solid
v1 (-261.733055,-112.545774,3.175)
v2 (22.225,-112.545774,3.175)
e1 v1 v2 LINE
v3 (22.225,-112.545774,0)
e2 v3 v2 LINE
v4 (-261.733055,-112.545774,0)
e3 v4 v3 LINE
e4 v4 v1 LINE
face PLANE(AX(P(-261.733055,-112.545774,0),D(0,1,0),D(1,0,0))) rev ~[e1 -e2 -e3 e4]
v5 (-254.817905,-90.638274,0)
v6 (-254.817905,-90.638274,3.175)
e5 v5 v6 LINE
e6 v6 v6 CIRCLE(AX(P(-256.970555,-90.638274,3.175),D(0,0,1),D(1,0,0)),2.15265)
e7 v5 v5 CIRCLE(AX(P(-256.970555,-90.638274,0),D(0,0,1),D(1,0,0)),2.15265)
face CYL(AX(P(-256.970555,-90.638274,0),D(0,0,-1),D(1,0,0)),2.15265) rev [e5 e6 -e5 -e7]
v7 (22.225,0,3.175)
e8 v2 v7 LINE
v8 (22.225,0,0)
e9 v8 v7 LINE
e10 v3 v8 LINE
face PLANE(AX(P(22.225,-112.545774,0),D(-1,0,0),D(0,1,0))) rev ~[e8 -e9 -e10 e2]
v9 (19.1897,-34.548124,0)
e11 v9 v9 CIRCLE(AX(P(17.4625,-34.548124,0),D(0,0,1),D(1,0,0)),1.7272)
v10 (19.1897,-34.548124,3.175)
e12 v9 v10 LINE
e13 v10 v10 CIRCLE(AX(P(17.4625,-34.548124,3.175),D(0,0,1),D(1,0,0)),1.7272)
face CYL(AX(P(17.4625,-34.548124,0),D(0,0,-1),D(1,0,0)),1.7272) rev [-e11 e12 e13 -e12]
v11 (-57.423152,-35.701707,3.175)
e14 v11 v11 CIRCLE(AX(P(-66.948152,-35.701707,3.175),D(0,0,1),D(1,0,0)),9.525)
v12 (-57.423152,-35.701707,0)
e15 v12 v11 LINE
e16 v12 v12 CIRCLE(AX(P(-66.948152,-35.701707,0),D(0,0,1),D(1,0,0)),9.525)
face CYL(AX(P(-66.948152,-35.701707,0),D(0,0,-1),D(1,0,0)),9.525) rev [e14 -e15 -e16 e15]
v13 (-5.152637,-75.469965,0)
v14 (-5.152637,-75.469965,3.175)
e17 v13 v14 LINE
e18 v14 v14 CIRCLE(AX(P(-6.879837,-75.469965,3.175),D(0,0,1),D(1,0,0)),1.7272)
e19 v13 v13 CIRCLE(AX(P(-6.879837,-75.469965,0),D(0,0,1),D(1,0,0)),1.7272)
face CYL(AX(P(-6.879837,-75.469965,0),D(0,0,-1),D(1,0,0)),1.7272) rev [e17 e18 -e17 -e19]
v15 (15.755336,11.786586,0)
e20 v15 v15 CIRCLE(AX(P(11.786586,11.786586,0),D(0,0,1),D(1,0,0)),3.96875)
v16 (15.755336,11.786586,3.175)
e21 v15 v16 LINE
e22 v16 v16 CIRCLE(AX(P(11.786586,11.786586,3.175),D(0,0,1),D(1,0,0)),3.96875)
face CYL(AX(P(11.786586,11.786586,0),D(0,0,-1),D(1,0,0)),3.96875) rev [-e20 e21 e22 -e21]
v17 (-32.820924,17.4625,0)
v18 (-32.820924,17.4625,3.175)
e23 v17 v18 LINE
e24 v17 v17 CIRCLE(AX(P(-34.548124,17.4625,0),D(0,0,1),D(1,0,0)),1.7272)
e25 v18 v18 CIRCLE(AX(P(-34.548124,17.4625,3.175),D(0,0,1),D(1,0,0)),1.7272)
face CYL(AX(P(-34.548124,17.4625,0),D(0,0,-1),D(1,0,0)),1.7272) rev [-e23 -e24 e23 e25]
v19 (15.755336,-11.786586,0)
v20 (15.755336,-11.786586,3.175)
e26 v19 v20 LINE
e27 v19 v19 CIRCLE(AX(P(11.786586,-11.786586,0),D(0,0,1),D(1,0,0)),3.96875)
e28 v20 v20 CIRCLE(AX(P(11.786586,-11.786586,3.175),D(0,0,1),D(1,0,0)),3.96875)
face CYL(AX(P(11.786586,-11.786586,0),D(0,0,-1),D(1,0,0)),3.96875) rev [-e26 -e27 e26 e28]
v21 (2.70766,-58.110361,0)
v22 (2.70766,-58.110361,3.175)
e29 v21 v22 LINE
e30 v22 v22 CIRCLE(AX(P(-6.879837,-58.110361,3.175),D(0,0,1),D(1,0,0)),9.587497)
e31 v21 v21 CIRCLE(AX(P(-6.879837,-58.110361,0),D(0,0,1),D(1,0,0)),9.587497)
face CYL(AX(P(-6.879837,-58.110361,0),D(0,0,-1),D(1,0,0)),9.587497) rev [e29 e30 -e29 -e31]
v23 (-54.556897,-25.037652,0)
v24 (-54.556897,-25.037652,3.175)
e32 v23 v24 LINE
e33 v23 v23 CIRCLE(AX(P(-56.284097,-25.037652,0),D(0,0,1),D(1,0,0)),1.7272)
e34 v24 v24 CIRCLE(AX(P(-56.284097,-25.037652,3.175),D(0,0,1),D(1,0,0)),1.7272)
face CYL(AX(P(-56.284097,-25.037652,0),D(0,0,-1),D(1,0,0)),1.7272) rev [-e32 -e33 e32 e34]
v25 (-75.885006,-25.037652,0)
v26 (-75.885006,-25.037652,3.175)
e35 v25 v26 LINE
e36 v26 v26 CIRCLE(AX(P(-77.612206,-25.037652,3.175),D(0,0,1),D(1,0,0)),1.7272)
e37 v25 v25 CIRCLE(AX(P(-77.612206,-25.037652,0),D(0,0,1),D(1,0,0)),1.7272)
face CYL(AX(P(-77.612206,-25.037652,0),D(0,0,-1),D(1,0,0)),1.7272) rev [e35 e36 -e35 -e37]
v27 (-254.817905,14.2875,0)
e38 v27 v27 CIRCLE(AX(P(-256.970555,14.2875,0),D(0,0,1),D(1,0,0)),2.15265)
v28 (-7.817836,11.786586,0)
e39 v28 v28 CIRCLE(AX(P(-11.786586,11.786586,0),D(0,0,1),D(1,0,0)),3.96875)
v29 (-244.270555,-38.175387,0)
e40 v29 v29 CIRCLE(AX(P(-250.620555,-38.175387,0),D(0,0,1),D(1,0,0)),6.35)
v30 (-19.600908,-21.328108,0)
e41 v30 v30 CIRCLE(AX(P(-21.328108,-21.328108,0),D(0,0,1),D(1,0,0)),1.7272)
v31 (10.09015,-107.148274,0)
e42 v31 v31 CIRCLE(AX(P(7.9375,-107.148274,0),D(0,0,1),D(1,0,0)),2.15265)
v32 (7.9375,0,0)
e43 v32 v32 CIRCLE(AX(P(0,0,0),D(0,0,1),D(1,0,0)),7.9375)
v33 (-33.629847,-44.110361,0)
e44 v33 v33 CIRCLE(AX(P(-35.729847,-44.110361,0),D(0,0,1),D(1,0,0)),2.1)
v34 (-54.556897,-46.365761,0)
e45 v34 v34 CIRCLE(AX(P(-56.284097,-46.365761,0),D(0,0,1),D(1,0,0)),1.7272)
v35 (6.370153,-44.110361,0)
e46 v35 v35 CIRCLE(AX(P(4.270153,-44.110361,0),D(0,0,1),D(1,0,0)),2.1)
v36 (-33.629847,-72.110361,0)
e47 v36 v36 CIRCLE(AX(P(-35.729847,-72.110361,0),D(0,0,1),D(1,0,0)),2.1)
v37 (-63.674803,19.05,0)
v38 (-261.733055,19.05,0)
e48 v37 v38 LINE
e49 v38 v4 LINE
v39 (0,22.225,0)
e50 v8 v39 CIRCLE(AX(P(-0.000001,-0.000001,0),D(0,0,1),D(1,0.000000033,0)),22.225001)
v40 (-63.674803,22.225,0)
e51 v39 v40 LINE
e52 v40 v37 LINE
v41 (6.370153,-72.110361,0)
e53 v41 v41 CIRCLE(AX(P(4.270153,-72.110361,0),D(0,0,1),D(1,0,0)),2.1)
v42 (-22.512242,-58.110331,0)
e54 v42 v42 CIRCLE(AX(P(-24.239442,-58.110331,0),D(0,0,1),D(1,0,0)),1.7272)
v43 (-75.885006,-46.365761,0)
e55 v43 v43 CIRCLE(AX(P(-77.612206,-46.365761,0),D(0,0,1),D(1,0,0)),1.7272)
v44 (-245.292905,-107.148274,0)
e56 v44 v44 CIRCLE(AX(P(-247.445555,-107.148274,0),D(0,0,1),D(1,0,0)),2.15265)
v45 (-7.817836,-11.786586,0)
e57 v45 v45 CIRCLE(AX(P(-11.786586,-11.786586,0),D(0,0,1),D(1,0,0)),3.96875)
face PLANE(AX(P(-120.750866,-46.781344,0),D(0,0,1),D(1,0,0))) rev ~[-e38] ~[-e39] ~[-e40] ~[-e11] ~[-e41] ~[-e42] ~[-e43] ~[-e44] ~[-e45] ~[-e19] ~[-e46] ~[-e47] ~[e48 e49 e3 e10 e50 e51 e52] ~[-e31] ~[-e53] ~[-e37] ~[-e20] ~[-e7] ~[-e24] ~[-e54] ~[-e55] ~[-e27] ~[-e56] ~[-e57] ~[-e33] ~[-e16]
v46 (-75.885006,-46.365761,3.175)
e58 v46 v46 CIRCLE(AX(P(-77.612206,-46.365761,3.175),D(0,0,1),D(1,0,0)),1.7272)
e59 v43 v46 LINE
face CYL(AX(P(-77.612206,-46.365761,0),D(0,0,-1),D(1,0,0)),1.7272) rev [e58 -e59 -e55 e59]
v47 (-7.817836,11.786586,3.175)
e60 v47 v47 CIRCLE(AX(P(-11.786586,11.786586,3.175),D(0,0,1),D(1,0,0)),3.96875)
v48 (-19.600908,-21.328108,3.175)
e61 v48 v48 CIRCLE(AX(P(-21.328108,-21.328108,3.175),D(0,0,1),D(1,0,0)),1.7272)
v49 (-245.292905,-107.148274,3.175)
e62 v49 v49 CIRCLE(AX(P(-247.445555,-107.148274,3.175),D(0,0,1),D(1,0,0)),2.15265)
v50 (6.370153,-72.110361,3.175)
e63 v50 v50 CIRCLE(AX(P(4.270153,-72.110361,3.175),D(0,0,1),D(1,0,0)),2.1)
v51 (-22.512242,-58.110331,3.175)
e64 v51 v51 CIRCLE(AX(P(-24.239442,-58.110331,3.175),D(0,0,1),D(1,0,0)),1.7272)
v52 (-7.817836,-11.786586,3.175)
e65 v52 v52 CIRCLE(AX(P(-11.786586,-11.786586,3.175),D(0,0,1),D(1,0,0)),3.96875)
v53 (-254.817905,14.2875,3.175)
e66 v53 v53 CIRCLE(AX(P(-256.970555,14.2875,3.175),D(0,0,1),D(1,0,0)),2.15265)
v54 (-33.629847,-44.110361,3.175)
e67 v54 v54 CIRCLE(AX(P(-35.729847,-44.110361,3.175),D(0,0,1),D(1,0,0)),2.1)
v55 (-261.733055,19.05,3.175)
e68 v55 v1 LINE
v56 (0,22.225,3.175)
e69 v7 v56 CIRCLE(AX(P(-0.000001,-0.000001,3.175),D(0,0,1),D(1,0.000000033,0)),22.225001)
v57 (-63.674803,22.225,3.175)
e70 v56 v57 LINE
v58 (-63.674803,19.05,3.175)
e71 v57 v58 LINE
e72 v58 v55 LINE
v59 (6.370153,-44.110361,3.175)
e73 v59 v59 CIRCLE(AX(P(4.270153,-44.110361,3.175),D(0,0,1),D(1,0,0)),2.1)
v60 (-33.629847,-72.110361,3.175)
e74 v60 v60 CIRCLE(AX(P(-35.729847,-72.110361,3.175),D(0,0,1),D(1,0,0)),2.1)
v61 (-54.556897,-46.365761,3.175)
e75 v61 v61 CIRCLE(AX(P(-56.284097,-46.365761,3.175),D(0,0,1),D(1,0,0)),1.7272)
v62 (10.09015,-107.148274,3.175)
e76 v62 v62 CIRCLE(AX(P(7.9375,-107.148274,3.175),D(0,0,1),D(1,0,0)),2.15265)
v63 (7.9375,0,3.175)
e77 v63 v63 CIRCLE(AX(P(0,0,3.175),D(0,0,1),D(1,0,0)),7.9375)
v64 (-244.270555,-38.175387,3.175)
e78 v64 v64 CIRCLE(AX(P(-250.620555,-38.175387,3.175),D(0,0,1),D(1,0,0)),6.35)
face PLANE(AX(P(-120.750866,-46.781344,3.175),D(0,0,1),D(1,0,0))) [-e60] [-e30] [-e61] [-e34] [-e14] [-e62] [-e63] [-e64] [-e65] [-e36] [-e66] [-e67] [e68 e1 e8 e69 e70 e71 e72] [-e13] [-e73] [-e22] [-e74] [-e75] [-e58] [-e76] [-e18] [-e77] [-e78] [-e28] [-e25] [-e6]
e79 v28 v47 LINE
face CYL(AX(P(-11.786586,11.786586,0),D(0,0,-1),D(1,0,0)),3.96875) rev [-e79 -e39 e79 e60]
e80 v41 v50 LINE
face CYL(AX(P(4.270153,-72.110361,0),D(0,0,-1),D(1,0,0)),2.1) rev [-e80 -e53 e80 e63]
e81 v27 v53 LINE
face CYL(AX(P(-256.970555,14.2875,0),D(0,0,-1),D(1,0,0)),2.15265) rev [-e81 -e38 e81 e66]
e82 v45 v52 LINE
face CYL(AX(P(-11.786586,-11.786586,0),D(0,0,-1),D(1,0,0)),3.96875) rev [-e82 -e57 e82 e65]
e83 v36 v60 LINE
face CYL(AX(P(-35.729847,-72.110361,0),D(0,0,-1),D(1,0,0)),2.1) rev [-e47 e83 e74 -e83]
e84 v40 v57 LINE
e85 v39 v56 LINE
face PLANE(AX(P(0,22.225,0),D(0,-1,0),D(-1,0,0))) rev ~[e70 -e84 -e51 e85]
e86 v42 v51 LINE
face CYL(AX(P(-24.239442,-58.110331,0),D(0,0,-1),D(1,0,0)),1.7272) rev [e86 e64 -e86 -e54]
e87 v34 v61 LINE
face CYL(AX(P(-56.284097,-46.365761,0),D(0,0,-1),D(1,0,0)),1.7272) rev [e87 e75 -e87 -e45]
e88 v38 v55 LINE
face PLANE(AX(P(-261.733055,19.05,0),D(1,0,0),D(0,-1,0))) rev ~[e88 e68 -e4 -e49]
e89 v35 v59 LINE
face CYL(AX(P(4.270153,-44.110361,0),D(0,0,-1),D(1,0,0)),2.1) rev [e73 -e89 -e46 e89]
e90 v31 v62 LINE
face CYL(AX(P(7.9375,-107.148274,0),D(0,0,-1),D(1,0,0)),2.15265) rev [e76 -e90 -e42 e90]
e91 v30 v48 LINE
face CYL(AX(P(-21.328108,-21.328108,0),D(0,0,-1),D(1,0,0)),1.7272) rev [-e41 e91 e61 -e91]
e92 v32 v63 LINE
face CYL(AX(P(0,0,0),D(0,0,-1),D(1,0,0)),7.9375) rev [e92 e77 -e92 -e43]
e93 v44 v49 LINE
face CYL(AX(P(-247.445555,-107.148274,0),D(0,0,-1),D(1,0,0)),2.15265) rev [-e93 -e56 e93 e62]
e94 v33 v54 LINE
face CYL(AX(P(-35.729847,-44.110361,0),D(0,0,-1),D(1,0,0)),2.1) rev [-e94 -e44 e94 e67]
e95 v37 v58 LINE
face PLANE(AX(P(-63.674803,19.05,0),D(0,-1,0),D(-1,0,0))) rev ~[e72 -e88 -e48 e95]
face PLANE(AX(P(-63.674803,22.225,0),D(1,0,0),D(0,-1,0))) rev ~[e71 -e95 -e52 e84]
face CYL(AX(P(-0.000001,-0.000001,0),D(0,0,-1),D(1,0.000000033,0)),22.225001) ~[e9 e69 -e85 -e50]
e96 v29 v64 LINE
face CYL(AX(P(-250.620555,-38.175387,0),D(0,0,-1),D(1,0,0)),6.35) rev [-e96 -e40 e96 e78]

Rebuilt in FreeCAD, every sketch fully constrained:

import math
import FreeCAD as App
import Part
import Sketcher
from FreeCAD import Vector
Q = App.Units.Quantity

doc = App.newDocument("Part")
params = doc.addObject("Spreadsheet::Sheet", "Params")
for row, (alias, value) in enumerate([
    ("sketch1_diameter", "0.5 in"),
    ("sketch1_diameter2", "0.75 in"),
    ("sketch1_diameter3", "0.136 in"),
    ("sketch1_diameter4", "0.3125 in"),
    ("sketch1_diameter5", "0.625 in"),
    ("pad1_length", "0.125 in"),
], start=1):
    params.set(f"A{row}", alias)
    params.set(f"B{row}", "=" + value)
    params.setAlias(f"B{row}", alias)

body = doc.addObject("PartDesign::Body", "Body")

# Sketch on XY plane
sketch1 = body.newObject("Sketcher::SketchObject", "Sketch")
sketch1.AttachmentSupport = (doc.getObject("XY_Plane"), [""])
sketch1.MapMode = "FlatFace"
sketch1.addGeometry([
    Part.LineSegment(Vector(0, 22.2, 0), Vector(-63.7, 22.2, 0)),  # 0
    Part.LineSegment(Vector(-63.7, 22.2, 0), Vector(-63.7, 19.1, 0)),  # 1
    Part.LineSegment(Vector(-63.7, 19.1, 0), Vector(-261.7, 19.1, 0)),  # 2
    Part.LineSegment(Vector(-261.7, 19.1, 0), Vector(-261.7, -112.5, 0)),  # 3
    Part.LineSegment(Vector(-261.7, -112.5, 0), Vector(22.2, -112.5, 0)),  # 4
    Part.LineSegment(Vector(22.2, -112.5, 0), Vector(22.2, 0, 0)),  # 5
    Part.ArcOfCircle(Part.Circle(Vector(0, 0, 0), Vector(0, 0, 1), 22.2), math.radians(0), math.radians(90)),  # 6
    Part.Circle(Vector(-247.4, -107.1, 0), Vector(0, 0, 1), 2.2),  # 7
    Part.Circle(Vector(-257, -90.6, 0), Vector(0, 0, 1), 2.2),  # 8
    Part.Circle(Vector(7.9, -107.1, 0), Vector(0, 0, 1), 2.2),  # 9
    Part.Circle(Vector(-77.6, -46.4, 0), Vector(0, 0, 1), 1.7),  # 10
    Part.Circle(Vector(-56.3, -46.4, 0), Vector(0, 0, 1), 1.7),  # 11
    Part.Circle(Vector(-35.7, -72.1, 0), Vector(0, 0, 1), 2.1),  # 12
    Part.Circle(Vector(-6.9, -75.5, 0), Vector(0, 0, 1), 1.7),  # 13
    Part.Circle(Vector(4.3, -72.1, 0), Vector(0, 0, 1), 2.1),  # 14
    Part.Circle(Vector(-24.2, -58.1, 0), Vector(0, 0, 1), 1.7),  # 15
    Part.Circle(Vector(-6.9, -58.1, 0), Vector(0, 0, 1), 9.6),  # 16
    Part.Circle(Vector(-250.6, -38.2, 0), Vector(0, 0, 1), 6.3),  # 17
    Part.Circle(Vector(-257, 14.3, 0), Vector(0, 0, 1), 2.2),  # 18
    Part.Circle(Vector(-66.9, -35.7, 0), Vector(0, 0, 1), 9.5),  # 19
    Part.Circle(Vector(-77.6, -25, 0), Vector(0, 0, 1), 1.7),  # 20
    Part.Circle(Vector(-56.3, -25, 0), Vector(0, 0, 1), 1.7),  # 21
    Part.Circle(Vector(-35.7, -44.1, 0), Vector(0, 0, 1), 2.1),  # 22
    Part.Circle(Vector(4.3, -44.1, 0), Vector(0, 0, 1), 2.1),  # 23
    Part.Circle(Vector(17.5, -34.5, 0), Vector(0, 0, 1), 1.7),  # 24
    Part.Circle(Vector(-21.3, -21.3, 0), Vector(0, 0, 1), 1.7),  # 25
    Part.Circle(Vector(-11.8, -11.8, 0), Vector(0, 0, 1), 4),  # 26
    Part.Circle(Vector(11.8, -11.8, 0), Vector(0, 0, 1), 4),  # 27
    Part.Circle(Vector(0, 0, 0), Vector(0, 0, 1), 7.9),  # 28
    Part.Circle(Vector(-34.5, 17.5, 0), Vector(0, 0, 1), 1.7),  # 29
    Part.Circle(Vector(-11.8, 11.8, 0), Vector(0, 0, 1), 4),  # 30
    Part.Circle(Vector(11.8, 11.8, 0), Vector(0, 0, 1), 4),  # 31
], False)
sketch1.addConstraint([
    Sketcher.Constraint("Coincident", 0, 2, 1, 1),
    Sketcher.Constraint("Coincident", 1, 2, 2, 1),
    Sketcher.Constraint("Coincident", 2, 2, 3, 1),
    Sketcher.Constraint("Coincident", 3, 2, 4, 1),
    Sketcher.Constraint("Coincident", 4, 2, 5, 1),
    Sketcher.Constraint("Tangent", 5, 2, 6, 1),
    Sketcher.Constraint("Tangent", 6, 2, 0, 1),
    Sketcher.Constraint("Horizontal", 0),
    Sketcher.Constraint("Vertical", 1),
    Sketcher.Constraint("Horizontal", 2),
    Sketcher.Constraint("Vertical", 3),
    Sketcher.Constraint("Horizontal", 4),
    Sketcher.Constraint("Vertical", 5),
    Sketcher.Constraint("Coincident", 6, 3, -1, 1),
    Sketcher.Constraint("Coincident", 28, 3, -1, 1),
    Sketcher.Constraint("Equal", 7, 8),
    Sketcher.Constraint("Equal", 8, 9),
    Sketcher.Constraint("Equal", 10, 11),
    Sketcher.Constraint("Equal", 11, 13),
    Sketcher.Constraint("Equal", 12, 14),
    Sketcher.Constraint("Equal", 13, 15),
    Sketcher.Constraint("Equal", 9, 18),
    Sketcher.Constraint("Equal", 15, 20),
    Sketcher.Constraint("Equal", 20, 21),
    Sketcher.Constraint("Equal", 14, 22),
    Sketcher.Constraint("Equal", 22, 23),
    Sketcher.Constraint("Equal", 21, 24),
    Sketcher.Constraint("Equal", 24, 25),
    Sketcher.Constraint("Equal", 26, 27),
    Sketcher.Constraint("Equal", 25, 29),
    Sketcher.Constraint("Equal", 27, 30),
    Sketcher.Constraint("Equal", 30, 31),
    Sketcher.Constraint("Symmetric", 27, 3, 30, 3, -1, 1),
    Sketcher.Constraint("Symmetric", 26, 3, 31, 3, -1, 1),
    Sketcher.Constraint("Symmetric", 26, 3, 27, 3, -2),
    Sketcher.Constraint("Horizontal", 7, 3, 9, 3),
    Sketcher.Constraint("Horizontal", 10, 3, 11, 3),
    Sketcher.Constraint("Horizontal", 12, 3, 14, 3),
    Sketcher.Constraint("Horizontal", 20, 3, 21, 3),
    Sketcher.Constraint("Horizontal", 22, 3, 23, 3),
    Sketcher.Constraint("Vertical", 13, 3, 16, 3),
    Sketcher.Constraint("Vertical", 8, 3, 18, 3),
    Sketcher.Constraint("Vertical", 10, 3, 20, 3),
    Sketcher.Constraint("Vertical", 11, 3, 21, 3),
    Sketcher.Constraint("Vertical", 12, 3, 22, 3),
    Sketcher.Constraint("Vertical", 14, 3, 23, 3),
    Sketcher.Constraint("Diameter", 17, Q("0.5 in")),
    Sketcher.Constraint("Diameter", 19, Q("0.75 in")),
    Sketcher.Constraint("Diameter", 10, Q("0.136 in")),
    Sketcher.Constraint("Diameter", 26, Q("0.3125 in")),
    Sketcher.Constraint("Diameter", 28, Q("0.625 in")),
    Sketcher.Constraint("Radius", 6, Q("0.875 in")),
    Sketcher.Constraint("Diameter", 7, Q("0.1695 in")),
    Sketcher.Constraint("Diameter", 12, 4.2),
    Sketcher.Constraint("DistanceY", 1, 2, 1, 1, Q("0.125 in")),
    Sketcher.Constraint("DistanceY", 7, 3, 8, 3, Q("0.65 in")),
    Sketcher.Constraint("DistanceX", 8, 3, 17, 3, Q("0.25 in")),
    Sketcher.Constraint("DistanceX", -1, 1, 9, 3, Q("0.3125 in")),
    Sketcher.Constraint("DistanceY", -1, 1, 18, 3, Q("0.5625 in")),
    Sketcher.Constraint("DistanceX", -1, 1, 24, 3, Q("0.6875 in")),
    Sketcher.Constraint("DistanceY", -1, 1, 29, 3, Q("0.6875 in")),
    Sketcher.Constraint("DistanceX", 8, 3, 7, 3, Q("0.375 in")),
    Sketcher.Constraint("DistanceX", 2, 2, 18, 3, Q("0.1875 in")),
    Sketcher.Constraint("Diameter", 16, 19.174994),
    Sketcher.Constraint("DistanceY", 3, 2, 7, 3, Q("0.2125 in")),
    Sketcher.Constraint("DistanceX", 2, 2, 2, 1, 198.058252),
    Sketcher.Constraint("DistanceY", 12, 3, 11, 3, 25.7446),
    Sketcher.Constraint("DistanceX", 12, 3, 14, 3, 40.0),
    Sketcher.Constraint("DistanceY", 14, 3, 16, 3, 14.0),
    Sketcher.Constraint("DistanceY", 11, 3, 22, 3, 2.2554),
    Sketcher.Constraint("DistanceX", 0, 2, 0, 1, 63.674803),
    Sketcher.Constraint("DistanceY", 3, 2, 3, 1, 131.595774),
    Sketcher.Constraint("DistanceY", 10, 3, -1, 1, 46.365761),
    Sketcher.Constraint("DistanceY", 15, 3, -1, 1, 58.110331),
    Sketcher.Constraint("DistanceX", 19, 3, -1, 1, 66.948152),
    Sketcher.Constraint("DistanceX", 25, 3, -1, 1, 21.328108),
    Sketcher.Constraint("DistanceY", 25, 3, -1, 1, 21.328108),
    Sketcher.Constraint("DistanceX", 7, 3, 10, 3, 169.833349),
    Sketcher.Constraint("DistanceX", 10, 3, 11, 3, 21.328109),
    Sketcher.Constraint("DistanceX", 11, 3, 12, 3, 20.55425),
    Sketcher.Constraint("DistanceX", 12, 3, 13, 3, 28.85001),
    Sketcher.Constraint("DistanceY", 9, 3, 13, 3, 31.678309),
    Sketcher.Constraint("DistanceX", 19, 3, 15, 3, 42.70871),
    Sketcher.Constraint("DistanceY", 10, 3, 20, 3, 21.328109),
    Sketcher.Constraint("DistanceY", 13, 3, 24, 3, 40.921841),
    Sketcher.Constraint("DistanceX", 26, 3, 23, 3, 16.056739),
    Sketcher.Constraint("DistanceY", 24, 3, 26, 3, 22.761538),
    Sketcher.Constraint("DistanceX", 29, 3, 26, 3, 22.761538),
    Sketcher.Constraint("DistanceY", 17, 3, -1, 1, 38.175387),
    Sketcher.Constraint("DistanceY", 19, 3, -1, 1, 35.701707),
])
sketch1.setExpression("Constraints[46]", "Params.sketch1_diameter")
sketch1.setExpression("Constraints[47]", "Params.sketch1_diameter2")
sketch1.setExpression("Constraints[48]", "Params.sketch1_diameter3")
sketch1.setExpression("Constraints[49]", "Params.sketch1_diameter4")
sketch1.setExpression("Constraints[50]", "Params.sketch1_diameter5")
pad1 = body.newObject("PartDesign::Pad", "Pad")
pad1.Profile = sketch1
pad1.setExpression("Length", "Params.pad1_length")

doc.recompute()
